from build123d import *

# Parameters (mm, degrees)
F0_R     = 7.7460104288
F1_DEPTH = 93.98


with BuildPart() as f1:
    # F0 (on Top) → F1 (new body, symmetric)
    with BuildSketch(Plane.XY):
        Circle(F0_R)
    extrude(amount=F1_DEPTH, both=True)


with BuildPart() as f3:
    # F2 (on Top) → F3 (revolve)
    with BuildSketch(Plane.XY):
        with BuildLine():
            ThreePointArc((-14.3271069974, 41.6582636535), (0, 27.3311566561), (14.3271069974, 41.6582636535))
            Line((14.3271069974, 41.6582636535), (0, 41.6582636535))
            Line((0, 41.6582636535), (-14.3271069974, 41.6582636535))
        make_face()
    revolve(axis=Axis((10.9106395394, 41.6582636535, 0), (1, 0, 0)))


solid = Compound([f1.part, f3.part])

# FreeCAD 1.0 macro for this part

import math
import FreeCAD as App
import Part
import Sketcher
from FreeCAD import Vector
Q = App.Units.Quantity

doc = App.newDocument("Part")
body = doc.addObject("PartDesign::Body", "Body")

sketch1 = body.newObject("Sketcher::SketchObject", "Sketch")
sketch1.AttachmentSupport = (doc.getObject("XY_Plane"), [""])
sketch1.MapMode = "FlatFace"
sketch1.addGeometry(Part.Circle(Vector(0, 0, 0), Vector(0, 0, 1), 7.74601), False)
sketch1.addConstraint(Sketcher.Constraint("Coincident", 0, 3, -1, 1))
sketch1.addConstraint(Sketcher.Constraint("Diameter", 0, 15.492021))
pad1 = body.newObject("PartDesign::Pad", "Pad")
pad1.Profile = sketch1
pad1.Length = Q("7.4 in")
pad1.Midplane = True
body2 = doc.addObject("PartDesign::Body", "Body001")

sketch2 = body2.newObject("Sketcher::SketchObject", "Sketch001")
sketch2.AttachmentSupport = (doc.getObject("XY_Plane001"), [""])
sketch2.MapMode = "FlatFace"
sketch2.addGeometry(Part.ArcOfCircle(Part.Circle(Vector(0, 41.658264, 0), Vector(0, 0, 1), 14.327107), math.radians(180), math.radians(360)), False)
sketch2.addGeometry(Part.LineSegment(Vector(14.327107, 41.658264, 0), Vector(-14.327107, 41.658264, 0)), False)
sketch2.addGeometry(Part.LineSegment(Vector(-14.327107, 41.658264, 0), Vector(14.327107, 41.658264, 0)), True)
sketch2.addConstraint(Sketcher.Constraint("Coincident", 0, 1, 1, 2))
sketch2.addConstraint(Sketcher.Constraint("Coincident", 1, 1, 0, 2))
sketch2.addConstraint(Sketcher.Constraint("Horizontal", 1))
sketch2.addConstraint(Sketcher.Constraint("Horizontal", 2))
sketch2.addConstraint(Sketcher.Constraint("Coincident", 2, 1, 0, 1))
sketch2.addConstraint(Sketcher.Constraint("PointOnObject", 0, 3, -2))
sketch2.addConstraint(Sketcher.Constraint("Equal", 1, 2))
sketch2.addConstraint(Sketcher.Constraint("Radius", 0, 14.327107))
sketch2.addConstraint(Sketcher.Constraint("DistanceY", -1, 1, 0, 3, 41.658264))
sketch2.addConstraint(Sketcher.Constraint("DistanceY", -1, 1, 0, 1, 41.658264))
revolution = body2.newObject("PartDesign::Revolution", "Revolution")
revolution.Profile = sketch2
revolution.ReferenceAxis = (sketch2, ["Axis0"])
revolution.Angle = 360

doc.recompute()
